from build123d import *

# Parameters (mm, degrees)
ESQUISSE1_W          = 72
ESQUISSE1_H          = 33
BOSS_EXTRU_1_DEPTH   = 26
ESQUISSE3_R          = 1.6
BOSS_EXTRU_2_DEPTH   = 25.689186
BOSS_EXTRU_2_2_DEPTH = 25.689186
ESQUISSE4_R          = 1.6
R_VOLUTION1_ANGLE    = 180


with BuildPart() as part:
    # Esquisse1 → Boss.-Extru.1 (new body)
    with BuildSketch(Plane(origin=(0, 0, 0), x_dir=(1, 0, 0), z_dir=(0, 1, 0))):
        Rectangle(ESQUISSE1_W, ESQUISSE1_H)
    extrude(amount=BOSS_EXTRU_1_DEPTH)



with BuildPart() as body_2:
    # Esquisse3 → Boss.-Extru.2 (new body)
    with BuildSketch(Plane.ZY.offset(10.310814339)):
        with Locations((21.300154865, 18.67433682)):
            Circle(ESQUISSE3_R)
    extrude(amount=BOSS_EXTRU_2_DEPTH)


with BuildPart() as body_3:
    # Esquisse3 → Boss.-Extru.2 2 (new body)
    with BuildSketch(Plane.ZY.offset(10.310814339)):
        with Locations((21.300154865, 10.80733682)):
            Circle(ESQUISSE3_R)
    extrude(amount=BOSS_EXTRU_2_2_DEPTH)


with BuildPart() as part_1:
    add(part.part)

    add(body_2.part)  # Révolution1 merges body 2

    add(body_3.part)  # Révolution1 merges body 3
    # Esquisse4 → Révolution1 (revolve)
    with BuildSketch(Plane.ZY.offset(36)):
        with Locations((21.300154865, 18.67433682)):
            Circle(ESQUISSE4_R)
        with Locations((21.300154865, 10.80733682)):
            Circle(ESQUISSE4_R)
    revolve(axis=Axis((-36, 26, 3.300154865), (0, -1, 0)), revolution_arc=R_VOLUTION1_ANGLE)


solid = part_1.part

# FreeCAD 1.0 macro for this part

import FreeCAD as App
import Part
import Sketcher
from FreeCAD import Vector

doc = App.newDocument("Part")
body = doc.addObject("PartDesign::Body", "Body")

sketch1 = doc.addObject("Sketcher::SketchObject", "Sketch")
body.addObject(sketch1)
sketch1.AttachmentSupport = (doc.XZ_Plane, [""])
sketch1.MapMode = "FlatFace"
sketch1.addGeometry([
    Part.LineSegment(Vector(-36, -16, 0), Vector(-36, 16, 0)),
    Part.LineSegment(Vector(-36, 16, 0), Vector(36, 16, 0)),
    Part.LineSegment(Vector(36, 16, 0), Vector(36, -16, 0)),
    Part.LineSegment(Vector(36, -16, 0), Vector(-36, -16, 0)),
], False)
sketch1.addConstraint([
    Sketcher.Constraint("Coincident", 0, 2, 1, 1),
    Sketcher.Constraint("Coincident", 1, 2, 2, 1),
    Sketcher.Constraint("Coincident", 2, 2, 3, 1),
    Sketcher.Constraint("Coincident", 3, 2, 0, 1),
    Sketcher.Constraint("Vertical", 0),
    Sketcher.Constraint("Horizontal", 1),
    Sketcher.Constraint("Vertical", 2),
    Sketcher.Constraint("Horizontal", 3),
    Sketcher.Constraint("Symmetric", 0, 2, 2, 2, -1, 1),
    Sketcher.Constraint("DistanceX", 1, 1, 1, 2, 72.0),
    Sketcher.Constraint("DistanceY", 0, 1, 0, 2, 33.0),
])
pad1 = doc.addObject("PartDesign::Pad", "Pad")
body.addObject(pad1)
pad1.Profile = sketch1
pad1.Length = 26
pad1.Reversed = True
body2 = doc.addObject("PartDesign::Body", "Body001")

sketch2 = doc.addObject("Sketcher::SketchObject", "Sketch001")
body2.addObject(sketch2)
sketch2.AttachmentSupport = (doc.getObject("YZ_Plane001"), [""])
sketch2.MapMode = "FlatFace"
sketch2.AttachmentOffset = App.Placement(Vector(0, 0, -10.310814), App.Rotation())
sketch2.addGeometry(Part.Circle(Vector(18.7, 21.3, 0), Vector(0, 0, 1), 1.6), False)
sketch2.addConstraint([
    Sketcher.Constraint("Diameter", 0, 3.2),
    Sketcher.Constraint("DistanceX", -1, 1, 0, 3, 18.674337),
    Sketcher.Constraint("DistanceY", -1, 1, 0, 3, 21.300155),
])
pad2 = doc.addObject("PartDesign::Pad", "Pad001")
body2.addObject(pad2)
pad2.Profile = sketch2
pad2.Length = 25.689186
pad2.Reversed = True
body3 = doc.addObject("PartDesign::Body", "Body002")

sketch3 = doc.addObject("Sketcher::SketchObject", "Sketch002")
body3.addObject(sketch3)
sketch3.AttachmentSupport = (doc.getObject("YZ_Plane002"), [""])
sketch3.MapMode = "FlatFace"
sketch3.AttachmentOffset = App.Placement(Vector(0, 0, -10.310814), App.Rotation())
sketch3.addGeometry(Part.Circle(Vector(10.8, 21.3, 0), Vector(0, 0, 1), 1.6), False)
sketch3.addConstraint([
    Sketcher.Constraint("Diameter", 0, 3.2),
    Sketcher.Constraint("DistanceX", -1, 1, 0, 3, 10.807337),
    Sketcher.Constraint("DistanceY", -1, 1, 0, 3, 21.300155),
])
pad3 = doc.addObject("PartDesign::Pad", "Pad002")
body3.addObject(pad3)
pad3.Profile = sketch3
pad3.Length = 25.689186
pad3.Reversed = True
body.AllowCompound = True
doc.recompute()

boolean = doc.addObject("PartDesign::Boolean", "Boolean")
body.addObject(boolean)
boolean.Type = "Fuse"
boolean.addObjects([body2])
doc.recompute()

boolean2 = doc.addObject("PartDesign::Boolean", "Boolean001")
body.addObject(boolean2)
boolean2.Type = "Fuse"
boolean2.addObjects([body3])

sketch4 = doc.addObject("Sketcher::SketchObject", "Sketch003")
body.addObject(sketch4)
sketch4.AttachmentSupport = (doc.YZ_Plane, [""])
sketch4.MapMode = "FlatFace"
sketch4.AttachmentOffset = App.Placement(Vector(0, 0, -36), App.Rotation())
sketch4.addGeometry([
    Part.Circle(Vector(18.7, 21.3, 0), Vector(0, 0, 1), 1.6),
    Part.Circle(Vector(10.8, 21.3, 0), Vector(0, 0, 1), 1.6),
], False)
sketch4.addGeometry(Part.LineSegment(Vector(18.7, 3.3, 0), Vector(10.8, 3.3, 0)), True)
sketch4.addConstraint([
    Sketcher.Constraint("Horizontal", 2),
    Sketcher.Constraint("Equal", 0, 1),
    Sketcher.Constraint("Horizontal", 0, 3, 1, 3),
    Sketcher.Constraint("Vertical", 0, 3, 2, 1),
    Sketcher.Constraint("Vertical", 1, 3, 2, 2),
    Sketcher.Constraint("Diameter", 0, 3.2),
    Sketcher.Constraint("DistanceY", 2, 1, 0, 3, 18.0),
    Sketcher.Constraint("DistanceX", 2, 2, 2, 1, 7.867),
    Sketcher.Constraint("DistanceX", -1, 1, 0, 3, 18.674337),
    Sketcher.Constraint("DistanceY", -1, 1, 0, 3, 21.300155),
])
revolution = doc.addObject("PartDesign::Revolution", "Revolution")
body.addObject(revolution)
revolution.Profile = sketch4
revolution.ReferenceAxis = (sketch4, ["Axis0"])
revolution.Angle = 180

doc.recompute()
